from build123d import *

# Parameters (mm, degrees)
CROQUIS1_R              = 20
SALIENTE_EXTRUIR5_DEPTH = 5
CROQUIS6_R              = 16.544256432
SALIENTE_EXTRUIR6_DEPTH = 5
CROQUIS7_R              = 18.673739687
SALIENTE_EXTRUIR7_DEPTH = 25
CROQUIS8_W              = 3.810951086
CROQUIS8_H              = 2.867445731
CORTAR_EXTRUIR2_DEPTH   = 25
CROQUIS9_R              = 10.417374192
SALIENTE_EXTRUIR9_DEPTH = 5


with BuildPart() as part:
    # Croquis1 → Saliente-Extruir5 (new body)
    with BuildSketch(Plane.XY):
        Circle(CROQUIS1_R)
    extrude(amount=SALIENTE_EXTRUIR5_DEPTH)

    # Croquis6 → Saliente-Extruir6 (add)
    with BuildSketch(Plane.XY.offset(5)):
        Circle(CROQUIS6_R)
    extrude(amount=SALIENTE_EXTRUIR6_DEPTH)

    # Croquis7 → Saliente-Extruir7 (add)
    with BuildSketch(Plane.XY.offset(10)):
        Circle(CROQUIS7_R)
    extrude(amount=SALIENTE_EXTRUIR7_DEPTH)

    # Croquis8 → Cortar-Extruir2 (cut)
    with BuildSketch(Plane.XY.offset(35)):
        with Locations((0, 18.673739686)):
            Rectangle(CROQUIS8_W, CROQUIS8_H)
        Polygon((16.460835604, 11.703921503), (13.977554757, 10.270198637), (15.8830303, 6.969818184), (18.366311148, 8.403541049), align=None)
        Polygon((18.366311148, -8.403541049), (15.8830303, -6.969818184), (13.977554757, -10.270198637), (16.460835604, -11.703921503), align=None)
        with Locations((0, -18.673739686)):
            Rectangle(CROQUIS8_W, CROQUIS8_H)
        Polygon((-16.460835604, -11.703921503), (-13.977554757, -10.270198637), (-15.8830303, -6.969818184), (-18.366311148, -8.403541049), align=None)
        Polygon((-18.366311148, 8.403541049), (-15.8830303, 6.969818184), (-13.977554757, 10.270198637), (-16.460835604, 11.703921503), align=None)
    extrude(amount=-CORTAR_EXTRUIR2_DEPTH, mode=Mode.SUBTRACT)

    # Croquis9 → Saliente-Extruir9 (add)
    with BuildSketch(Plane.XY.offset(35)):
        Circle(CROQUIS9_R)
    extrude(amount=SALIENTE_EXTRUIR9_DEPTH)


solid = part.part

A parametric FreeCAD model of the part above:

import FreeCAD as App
import Part
import Sketcher
from FreeCAD import Vector
Q = App.Units.Quantity

doc = App.newDocument("Part")
body = doc.addObject("PartDesign::Body", "Body")

sketch1 = body.newObject("Sketcher::SketchObject", "Sketch")
sketch1.AttachmentSupport = (doc.getObject("XY_Plane"), [""])
sketch1.MapMode = "FlatFace"
sketch1.addGeometry(Part.Circle(Vector(0, 0, 0), Vector(0, 0, 1), 20), False)
sketch1.addConstraint([
    Sketcher.Constraint("Coincident", 0, 3, -1, 1),
    Sketcher.Constraint("Diameter", 0, 40.0),
])
pad1 = body.newObject("PartDesign::Pad", "Pad")
pad1.Profile = sketch1
pad1.Length = 5

sketch2 = body.newObject("Sketcher::SketchObject", "Sketch001")
sketch2.AttachmentSupport = (doc.getObject("XY_Plane"), [""])
sketch2.MapMode = "FlatFace"
sketch2.AttachmentOffset = App.Placement(Vector(0, 0, 5), App.Rotation())
sketch2.addGeometry(Part.Circle(Vector(0, 0, 0), Vector(0, 0, 1), 16.544256), False)
sketch2.addConstraint([
    Sketcher.Constraint("Coincident", 0, 3, -1, 1),
    Sketcher.Constraint("Diameter", 0, 33.088513),
])
pad2 = body.newObject("PartDesign::Pad", "Pad001")
pad2.Profile = sketch2
pad2.Length = 5

sketch3 = body.newObject("Sketcher::SketchObject", "Sketch002")
sketch3.AttachmentSupport = (doc.getObject("XY_Plane"), [""])
sketch3.MapMode = "FlatFace"
sketch3.AttachmentOffset = App.Placement(Vector(0, 0, 10), App.Rotation())
sketch3.addGeometry(Part.Circle(Vector(0, 0, 0), Vector(0, 0, 1), 18.67374), False)
sketch3.addConstraint([
    Sketcher.Constraint("Coincident", 0, 3, -1, 1),
    Sketcher.Constraint("Diameter", 0, 37.347479),
])
pad3 = body.newObject("PartDesign::Pad", "Pad002")
pad3.Profile = sketch3
pad3.Length = 25

sketch4 = body.newObject("Sketcher::SketchObject", "Sketch003")
sketch4.AttachmentSupport = (doc.getObject("XY_Plane"), [""])
sketch4.MapMode = "FlatFace"
sketch4.AttachmentOffset = App.Placement(Vector(0, 0, 35), App.Rotation())
sketch4.addGeometry([
    Part.LineSegment(Vector(-1.905476, 20.107463, 0), Vector(-1.905476, 17.240017, 0)),
    Part.LineSegment(Vector(-1.905476, 17.240017, 0), Vector(1.905476, 17.240017, 0)),
    Part.LineSegment(Vector(1.905476, 17.240017, 0), Vector(1.905476, 20.107463, 0)),
    Part.LineSegment(Vector(1.905476, 20.107463, 0), Vector(-1.905476, 20.107463, 0)),
    Part.LineSegment(Vector(16.460836, 11.703922, 0), Vector(13.977555, 10.270199, 0)),
    Part.LineSegment(Vector(13.977555, 10.270199, 0), Vector(15.88303, 6.969818, 0)),
    Part.LineSegment(Vector(15.88303, 6.969818, 0), Vector(18.366311, 8.403541, 0)),
    Part.LineSegment(Vector(18.366311, 8.403541, 0), Vector(16.460836, 11.703922, 0)),
    Part.LineSegment(Vector(18.366311, -8.403541, 0), Vector(15.88303, -6.969818, 0)),
    Part.LineSegment(Vector(15.88303, -6.969818, 0), Vector(13.977555, -10.270199, 0)),
    Part.LineSegment(Vector(13.977555, -10.270199, 0), Vector(16.460836, -11.703922, 0)),
    Part.LineSegment(Vector(16.460836, -11.703922, 0), Vector(18.366311, -8.403541, 0)),
    Part.LineSegment(Vector(-1.905476, -17.240017, 0), Vector(-1.905476, -20.107463, 0)),
    Part.LineSegment(Vector(-1.905476, -20.107463, 0), Vector(1.905476, -20.107463, 0)),
    Part.LineSegment(Vector(1.905476, -20.107463, 0), Vector(1.905476, -17.240017, 0)),
    Part.LineSegment(Vector(1.905476, -17.240017, 0), Vector(-1.905476, -17.240017, 0)),
    Part.LineSegment(Vector(-16.460836, -11.703922, 0), Vector(-13.977555, -10.270199, 0)),
    Part.LineSegment(Vector(-13.977555, -10.270199, 0), Vector(-15.88303, -6.969818, 0)),
    Part.LineSegment(Vector(-15.88303, -6.969818, 0), Vector(-18.366311, -8.403541, 0)),
    Part.LineSegment(Vector(-18.366311, -8.403541, 0), Vector(-16.460836, -11.703922, 0)),
    Part.LineSegment(Vector(-18.366311, 8.403541, 0), Vector(-15.88303, 6.969818, 0)),
    Part.LineSegment(Vector(-15.88303, 6.969818, 0), Vector(-13.977555, 10.270199, 0)),
    Part.LineSegment(Vector(-13.977555, 10.270199, 0), Vector(-16.460836, 11.703922, 0)),
    Part.LineSegment(Vector(-16.460836, 11.703922, 0), Vector(-18.366311, 8.403541, 0)),
], False)
sketch4.addConstraint([
    Sketcher.Constraint("Coincident", 0, 2, 1, 1),
    Sketcher.Constraint("Coincident", 1, 2, 2, 1),
    Sketcher.Constraint("Coincident", 2, 2, 3, 1),
    Sketcher.Constraint("Coincident", 3, 2, 0, 1),
    Sketcher.Constraint("Coincident", 4, 2, 5, 1),
    Sketcher.Constraint("Coincident", 5, 2, 6, 1),
    Sketcher.Constraint("Coincident", 6, 2, 7, 1),
    Sketcher.Constraint("Coincident", 7, 2, 4, 1),
    Sketcher.Constraint("Coincident", 8, 2, 9, 1),
    Sketcher.Constraint("Coincident", 9, 2, 10, 1),
    Sketcher.Constraint("Coincident", 10, 2, 11, 1),
    Sketcher.Constraint("Coincident", 11, 2, 8, 1),
    Sketcher.Constraint("Coincident", 12, 2, 13, 1),
    Sketcher.Constraint("Coincident", 13, 2, 14, 1),
    Sketcher.Constraint("Coincident", 14, 2, 15, 1),
    Sketcher.Constraint("Coincident", 15, 2, 12, 1),
    Sketcher.Constraint("Coincident", 16, 2, 17, 1),
    Sketcher.Constraint("Coincident", 17, 2, 18, 1),
    Sketcher.Constraint("Coincident", 18, 2, 19, 1),
    Sketcher.Constraint("Coincident", 19, 2, 16, 1),
    Sketcher.Constraint("Coincident", 20, 2, 21, 1),
    Sketcher.Constraint("Coincident", 21, 2, 22, 1),
    Sketcher.Constraint("Coincident", 22, 2, 23, 1),
    Sketcher.Constraint("Coincident", 23, 2, 20, 1),
    Sketcher.Constraint("Vertical", 0),
    Sketcher.Constraint("Horizontal", 1),
    Sketcher.Constraint("Vertical", 2),
    Sketcher.Constraint("Horizontal", 3),
    Sketcher.Constraint("Vertical", 12),
    Sketcher.Constraint("Horizontal", 13),
    Sketcher.Constraint("Vertical", 14),
    Sketcher.Constraint("Horizontal", 15),
    Sketcher.Constraint("Symmetric", 2, 2, 12, 2, -1, 1),
    Sketcher.Constraint("Symmetric", 0, 2, 14, 2, -1, 1),
    Sketcher.Constraint("Symmetric", 4, 2, 16, 2, -1, 1),
    Sketcher.Constraint("Symmetric", 5, 2, 17, 2, -1, 1),
    Sketcher.Constraint("Symmetric", 6, 2, 18, 2, -1, 1),
    Sketcher.Constraint("Symmetric", 7, 2, 19, 2, -1, 1),
    Sketcher.Constraint("Symmetric", 8, 2, 20, 2, -1, 1),
    Sketcher.Constraint("Symmetric", 9, 2, 21, 2, -1, 1),
    Sketcher.Constraint("Symmetric", 10, 2, 22, 2, -1, 1),
    Sketcher.Constraint("Symmetric", 11, 2, 23, 2, -1, 1),
    Sketcher.Constraint("Symmetric", 9, 2, 16, 2, -2),
    Sketcher.Constraint("Symmetric", 8, 2, 17, 2, -2),
    Sketcher.Constraint("Symmetric", 11, 2, 18, 2, -2),
    Sketcher.Constraint("Symmetric", 10, 2, 19, 2, -2),
    Sketcher.Constraint("Perpendicular", 4, 5),
    Sketcher.Constraint("Perpendicular", 5, 6),
    Sketcher.Constraint("Perpendicular", 6, 7),
    Sketcher.Constraint("Vertical", 3, 2, 12, 2),
    Sketcher.Constraint("Angle", 4, Q("-150 deg")),
    Sketcher.Constraint("DistanceX", 1, 1, 1, 2, 3.810951),
    Sketcher.Constraint("DistanceY", -1, 1, 4, 2, 10.270199),
    Sketcher.Constraint("DistanceY", 5, 2, 1, 2, 10.270199),
    Sketcher.Constraint("Distance", 5, 3.810951),
    Sketcher.Constraint("DistanceY", 0, 2, 0, 1, 2.867446),
    Sketcher.Constraint("DistanceX", -1, 1, 5, 2, 15.88303),
    Sketcher.Constraint("DistanceX", -1, 1, 6, 2, 18.366311),
])
pocket1 = body.newObject("PartDesign::Pocket", "Pocket")
pocket1.Profile = sketch4
pocket1.Length = 25

sketch5 = body.newObject("Sketcher::SketchObject", "Sketch004")
sketch5.AttachmentSupport = (doc.getObject("XY_Plane"), [""])
sketch5.MapMode = "FlatFace"
sketch5.AttachmentOffset = App.Placement(Vector(0, 0, 35), App.Rotation())
sketch5.addGeometry(Part.Circle(Vector(0, 0, 0), Vector(0, 0, 1), 10.417374), False)
sketch5.addConstraint([
    Sketcher.Constraint("Coincident", 0, 3, -1, 1),
    Sketcher.Constraint("Diameter", 0, 20.834748),
])
pad4 = body.newObject("PartDesign::Pad", "Pad003")
pad4.Profile = sketch5
pad4.Length = 5

doc.recompute()
